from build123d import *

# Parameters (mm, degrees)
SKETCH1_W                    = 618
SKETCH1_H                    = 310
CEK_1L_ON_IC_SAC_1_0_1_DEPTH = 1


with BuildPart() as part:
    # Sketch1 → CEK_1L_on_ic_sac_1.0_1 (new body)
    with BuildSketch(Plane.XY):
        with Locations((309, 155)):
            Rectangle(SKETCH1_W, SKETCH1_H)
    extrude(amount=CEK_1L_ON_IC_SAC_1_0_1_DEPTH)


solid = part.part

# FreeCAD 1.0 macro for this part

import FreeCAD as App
import Part
import Sketcher

doc = App.newDocument("Part")
body = doc.addObject("PartDesign::Body", "Body")

sketch1 = body.newObject("Sketcher::SketchObject", "Sketch")
sketch1.AttachmentSupport = (doc.getObject("XY_Plane"), [""])
sketch1.MapMode = "FlatFace"
sketch1.addGeometry([
    Part.LineSegment(App.Vector(0, 310, 0), App.Vector(0, 0, 0)),
    Part.LineSegment(App.Vector(0, 0, 0), App.Vector(618, 0, 0)),
    Part.LineSegment(App.Vector(618, 0, 0), App.Vector(618, 310, 0)),
    Part.LineSegment(App.Vector(618, 310, 0), App.Vector(0, 310, 0)),
], False)
sketch1.addConstraint([
    Sketcher.Constraint("Coincident", 0, 2, 1, 1),
    Sketcher.Constraint("Coincident", 1, 2, 2, 1),
    Sketcher.Constraint("Coincident", 2, 2, 3, 1),
    Sketcher.Constraint("Coincident", 3, 2, 0, 1),
    Sketcher.Constraint("Vertical", 0),
    Sketcher.Constraint("Horizontal", 1),
    Sketcher.Constraint("Vertical", 2),
    Sketcher.Constraint("Horizontal", 3),
    Sketcher.Constraint("Coincident", 0, 2, -1, 1),
    Sketcher.Constraint("DistanceX", 1, 1, 1, 2, 618.0),
    Sketcher.Constraint("DistanceY", 0, 2, 0, 1, 310.0),
])
pad1 = body.newObject("PartDesign::Pad", "Pad")
pad1.Profile = sketch1
pad1.Length = 1

doc.recompute()
